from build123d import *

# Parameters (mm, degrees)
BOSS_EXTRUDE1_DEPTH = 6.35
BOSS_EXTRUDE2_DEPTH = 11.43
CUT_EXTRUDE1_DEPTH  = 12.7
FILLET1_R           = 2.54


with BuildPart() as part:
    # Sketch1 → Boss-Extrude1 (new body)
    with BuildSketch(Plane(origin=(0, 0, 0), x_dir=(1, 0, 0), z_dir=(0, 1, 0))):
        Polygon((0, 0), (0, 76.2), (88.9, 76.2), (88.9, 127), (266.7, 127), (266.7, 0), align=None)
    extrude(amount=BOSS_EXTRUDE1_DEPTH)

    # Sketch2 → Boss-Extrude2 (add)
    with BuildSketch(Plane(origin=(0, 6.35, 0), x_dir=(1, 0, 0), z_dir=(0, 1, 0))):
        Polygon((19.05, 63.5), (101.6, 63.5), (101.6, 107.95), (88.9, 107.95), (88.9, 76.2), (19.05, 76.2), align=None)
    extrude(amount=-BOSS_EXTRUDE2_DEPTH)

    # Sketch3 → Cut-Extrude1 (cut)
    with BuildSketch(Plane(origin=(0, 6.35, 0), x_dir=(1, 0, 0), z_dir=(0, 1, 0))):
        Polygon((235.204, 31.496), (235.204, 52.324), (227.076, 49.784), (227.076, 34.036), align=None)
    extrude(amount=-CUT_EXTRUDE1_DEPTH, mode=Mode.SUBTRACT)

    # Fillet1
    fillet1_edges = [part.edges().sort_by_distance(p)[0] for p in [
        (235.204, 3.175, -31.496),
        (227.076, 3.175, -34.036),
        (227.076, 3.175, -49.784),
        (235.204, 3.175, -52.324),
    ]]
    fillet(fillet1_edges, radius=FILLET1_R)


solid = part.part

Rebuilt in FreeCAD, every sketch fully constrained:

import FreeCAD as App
import Part
import Sketcher
from FreeCAD import Vector
Q = App.Units.Quantity


def edges_at(feature, points):
    """Names of the edges that pass closest to the given points."""
    edges = feature.Shape.Edges
    near = lambda p: min(range(len(edges)), key=lambda i: edges[i].distToShape(Part.Vertex(*p))[0])
    return sorted({f"Edge{near(p) + 1}" for p in points})


def add_polygon(sketch, points):
    """Adds a closed chain of lines whose ends are joined by coincident constraints."""
    first, n = sketch.GeometryCount, len(points)
    for a, b in zip(points, points[1:] + points[:1]):
        sketch.addGeometry(Part.LineSegment(App.Vector(*a, 0), App.Vector(*b, 0)), False)
    for i in range(n):
        sketch.addConstraint(Sketcher.Constraint("Coincident", first + i, 2, first + (i + 1) % n, 1))

doc = App.newDocument("Part")
params = doc.addObject("Spreadsheet::Sheet", "Params")
for row, (alias, value) in enumerate([
    ("sketch1_width", "7 in"),
    ("sketch1_height", "3 in"),
    ("sketch1_height2", "5 in"),
    ("sketch1_width2", "10.5 in"),
    ("pad1_length", "0.25 in"),
    ("sketch2_width", "0.5 in"),
    ("sketch2_width2", "3.25 in"),
    ("sketch2_height", "1.75 in"),
    ("pad2_length", "0.45 in"),
    ("sketch3_height", "0.82 in"),
    ("sketch3_height2", "0.62 in"),
    ("pocket1_length", "0.5 in"),
    ("fillet_radius", "0.1 in"),
], start=1):
    params.set(f"A{row}", alias)
    params.set(f"B{row}", "=" + value)
    params.setAlias(f"B{row}", alias)

body = doc.addObject("PartDesign::Body", "Body")

# Sketch on XZ plane
sketch1 = body.newObject("Sketcher::SketchObject", "Sketch")
sketch1.AttachmentSupport = (doc.getObject("XZ_Plane"), [""])
sketch1.MapMode = "FlatFace"
add_polygon(sketch1, [(0, -76.2), (0, 0), (266.7, 0), (266.7, -127), (88.9, -127), (88.9, -76.2)])  # lines 0-5
sketch1.addConstraint([
    Sketcher.Constraint("Vertical", 0),
    Sketcher.Constraint("Horizontal", 1),
    Sketcher.Constraint("Vertical", 2),
    Sketcher.Constraint("Horizontal", 3),
    Sketcher.Constraint("Vertical", 4),
    Sketcher.Constraint("Horizontal", 5),
    Sketcher.Constraint("Coincident", 0, 2, -1, 1),
    Sketcher.Constraint("DistanceX", 3, 2, 3, 1, Q("7 in")),
    Sketcher.Constraint("DistanceY", 0, 1, 0, 2, Q("3 in")),
    Sketcher.Constraint("DistanceY", 2, 2, 2, 1, Q("5 in")),
    Sketcher.Constraint("DistanceX", 1, 1, 1, 2, Q("10.5 in")),
])
sketch1.setExpression("Constraints[13]", "Params.sketch1_width")
sketch1.setExpression("Constraints[14]", "Params.sketch1_height")
sketch1.setExpression("Constraints[15]", "Params.sketch1_height2")
sketch1.setExpression("Constraints[16]", "Params.sketch1_width2")
pad1 = body.newObject("PartDesign::Pad", "Pad")
pad1.Profile = sketch1
pad1.setExpression("Length", "Params.pad1_length")
pad1.Reversed = True

# Sketch on XZ plane
sketch2 = body.newObject("Sketcher::SketchObject", "Sketch001")
sketch2.AttachmentSupport = (doc.getObject("XZ_Plane"), [""])
sketch2.MapMode = "FlatFace"
sketch2.AttachmentOffset = App.Placement(Vector(0, 0, -0.25 * 25.4), App.Rotation())
add_polygon(sketch2, [(19.05, -63.5), (101.6, -63.5), (101.6, -107.95), (88.9, -107.95), (88.9, -76.2), (19.05, -76.2)])  # lines 0-5
sketch2.addConstraint([
    Sketcher.Constraint("Horizontal", 0),
    Sketcher.Constraint("Vertical", 1),
    Sketcher.Constraint("Horizontal", 2),
    Sketcher.Constraint("Vertical", 3),
    Sketcher.Constraint("Horizontal", 4),
    Sketcher.Constraint("Vertical", 5),
    Sketcher.Constraint("Equal", 2, 5),
    Sketcher.Constraint("DistanceX", 2, 2, 2, 1, Q("0.5 in")),
    Sketcher.Constraint("DistanceX", -1, 1, 0, 2, Q("4 in")),
    Sketcher.Constraint("DistanceY", 3, 2, -1, 1, Q("3 in")),
    Sketcher.Constraint("DistanceX", 0, 1, 0, 2, Q("3.25 in")),
    Sketcher.Constraint("DistanceY", 1, 2, 1, 1, Q("1.75 in")),
])
sketch2.setExpression("Constraints[13]", "Params.sketch2_width")
sketch2.setExpression("Constraints[16]", "Params.sketch2_width2")
sketch2.setExpression("Constraints[17]", "Params.sketch2_height")
pad2 = body.newObject("PartDesign::Pad", "Pad001")
pad2.Profile = sketch2
pad2.setExpression("Length", "Params.pad2_length")

# Sketch on XZ plane
sketch3 = body.newObject("Sketcher::SketchObject", "Sketch002")
sketch3.AttachmentSupport = (doc.getObject("XZ_Plane"), [""])
sketch3.MapMode = "FlatFace"
sketch3.AttachmentOffset = App.Placement(Vector(0, 0, -0.25 * 25.4), App.Rotation())
add_polygon(sketch3, [(235.204, -31.496), (235.204, -52.324), (227.076, -49.784), (227.076, -34.036)])  # lines 0-3
sketch3.addConstraint([
    Sketcher.Constraint("Vertical", 0),
    Sketcher.Constraint("Vertical", 2),
    Sketcher.Constraint("Equal", 1, 3),
    Sketcher.Constraint("DistanceY", 0, 2, 0, 1, Q("0.82 in")),
    Sketcher.Constraint("DistanceY", 2, 1, 2, 2, Q("0.62 in")),
    Sketcher.Constraint("DistanceX", -1, 1, 0, 2, Q("9.26 in")),
    Sketcher.Constraint("DistanceY", 0, 2, -1, 1, Q("2.06 in")),
    Sketcher.Constraint("DistanceX", -1, 1, 1, 2, Q("8.94 in")),
])
sketch3.setExpression("Constraints[7]", "Params.sketch3_height")
sketch3.setExpression("Constraints[8]", "Params.sketch3_height2")
pocket1 = body.newObject("PartDesign::Pocket", "Pocket")
pocket1.Profile = sketch3
pocket1.setExpression("Length", "Params.pocket1_length")
pocket1.Reversed = True
doc.recompute()

fillet = body.newObject("PartDesign::Fillet", "Fillet")
fillet.Base = (pocket1, edges_at(pocket1, [
    (235.204, 3.175, -31.496),
    (227.076, 3.175, -34.036),
    (227.076, 3.175, -49.784),
    (235.204, 3.175, -52.324),
]))
fillet.setExpression("Radius", "Params.fillet_radius")

doc.recompute()
